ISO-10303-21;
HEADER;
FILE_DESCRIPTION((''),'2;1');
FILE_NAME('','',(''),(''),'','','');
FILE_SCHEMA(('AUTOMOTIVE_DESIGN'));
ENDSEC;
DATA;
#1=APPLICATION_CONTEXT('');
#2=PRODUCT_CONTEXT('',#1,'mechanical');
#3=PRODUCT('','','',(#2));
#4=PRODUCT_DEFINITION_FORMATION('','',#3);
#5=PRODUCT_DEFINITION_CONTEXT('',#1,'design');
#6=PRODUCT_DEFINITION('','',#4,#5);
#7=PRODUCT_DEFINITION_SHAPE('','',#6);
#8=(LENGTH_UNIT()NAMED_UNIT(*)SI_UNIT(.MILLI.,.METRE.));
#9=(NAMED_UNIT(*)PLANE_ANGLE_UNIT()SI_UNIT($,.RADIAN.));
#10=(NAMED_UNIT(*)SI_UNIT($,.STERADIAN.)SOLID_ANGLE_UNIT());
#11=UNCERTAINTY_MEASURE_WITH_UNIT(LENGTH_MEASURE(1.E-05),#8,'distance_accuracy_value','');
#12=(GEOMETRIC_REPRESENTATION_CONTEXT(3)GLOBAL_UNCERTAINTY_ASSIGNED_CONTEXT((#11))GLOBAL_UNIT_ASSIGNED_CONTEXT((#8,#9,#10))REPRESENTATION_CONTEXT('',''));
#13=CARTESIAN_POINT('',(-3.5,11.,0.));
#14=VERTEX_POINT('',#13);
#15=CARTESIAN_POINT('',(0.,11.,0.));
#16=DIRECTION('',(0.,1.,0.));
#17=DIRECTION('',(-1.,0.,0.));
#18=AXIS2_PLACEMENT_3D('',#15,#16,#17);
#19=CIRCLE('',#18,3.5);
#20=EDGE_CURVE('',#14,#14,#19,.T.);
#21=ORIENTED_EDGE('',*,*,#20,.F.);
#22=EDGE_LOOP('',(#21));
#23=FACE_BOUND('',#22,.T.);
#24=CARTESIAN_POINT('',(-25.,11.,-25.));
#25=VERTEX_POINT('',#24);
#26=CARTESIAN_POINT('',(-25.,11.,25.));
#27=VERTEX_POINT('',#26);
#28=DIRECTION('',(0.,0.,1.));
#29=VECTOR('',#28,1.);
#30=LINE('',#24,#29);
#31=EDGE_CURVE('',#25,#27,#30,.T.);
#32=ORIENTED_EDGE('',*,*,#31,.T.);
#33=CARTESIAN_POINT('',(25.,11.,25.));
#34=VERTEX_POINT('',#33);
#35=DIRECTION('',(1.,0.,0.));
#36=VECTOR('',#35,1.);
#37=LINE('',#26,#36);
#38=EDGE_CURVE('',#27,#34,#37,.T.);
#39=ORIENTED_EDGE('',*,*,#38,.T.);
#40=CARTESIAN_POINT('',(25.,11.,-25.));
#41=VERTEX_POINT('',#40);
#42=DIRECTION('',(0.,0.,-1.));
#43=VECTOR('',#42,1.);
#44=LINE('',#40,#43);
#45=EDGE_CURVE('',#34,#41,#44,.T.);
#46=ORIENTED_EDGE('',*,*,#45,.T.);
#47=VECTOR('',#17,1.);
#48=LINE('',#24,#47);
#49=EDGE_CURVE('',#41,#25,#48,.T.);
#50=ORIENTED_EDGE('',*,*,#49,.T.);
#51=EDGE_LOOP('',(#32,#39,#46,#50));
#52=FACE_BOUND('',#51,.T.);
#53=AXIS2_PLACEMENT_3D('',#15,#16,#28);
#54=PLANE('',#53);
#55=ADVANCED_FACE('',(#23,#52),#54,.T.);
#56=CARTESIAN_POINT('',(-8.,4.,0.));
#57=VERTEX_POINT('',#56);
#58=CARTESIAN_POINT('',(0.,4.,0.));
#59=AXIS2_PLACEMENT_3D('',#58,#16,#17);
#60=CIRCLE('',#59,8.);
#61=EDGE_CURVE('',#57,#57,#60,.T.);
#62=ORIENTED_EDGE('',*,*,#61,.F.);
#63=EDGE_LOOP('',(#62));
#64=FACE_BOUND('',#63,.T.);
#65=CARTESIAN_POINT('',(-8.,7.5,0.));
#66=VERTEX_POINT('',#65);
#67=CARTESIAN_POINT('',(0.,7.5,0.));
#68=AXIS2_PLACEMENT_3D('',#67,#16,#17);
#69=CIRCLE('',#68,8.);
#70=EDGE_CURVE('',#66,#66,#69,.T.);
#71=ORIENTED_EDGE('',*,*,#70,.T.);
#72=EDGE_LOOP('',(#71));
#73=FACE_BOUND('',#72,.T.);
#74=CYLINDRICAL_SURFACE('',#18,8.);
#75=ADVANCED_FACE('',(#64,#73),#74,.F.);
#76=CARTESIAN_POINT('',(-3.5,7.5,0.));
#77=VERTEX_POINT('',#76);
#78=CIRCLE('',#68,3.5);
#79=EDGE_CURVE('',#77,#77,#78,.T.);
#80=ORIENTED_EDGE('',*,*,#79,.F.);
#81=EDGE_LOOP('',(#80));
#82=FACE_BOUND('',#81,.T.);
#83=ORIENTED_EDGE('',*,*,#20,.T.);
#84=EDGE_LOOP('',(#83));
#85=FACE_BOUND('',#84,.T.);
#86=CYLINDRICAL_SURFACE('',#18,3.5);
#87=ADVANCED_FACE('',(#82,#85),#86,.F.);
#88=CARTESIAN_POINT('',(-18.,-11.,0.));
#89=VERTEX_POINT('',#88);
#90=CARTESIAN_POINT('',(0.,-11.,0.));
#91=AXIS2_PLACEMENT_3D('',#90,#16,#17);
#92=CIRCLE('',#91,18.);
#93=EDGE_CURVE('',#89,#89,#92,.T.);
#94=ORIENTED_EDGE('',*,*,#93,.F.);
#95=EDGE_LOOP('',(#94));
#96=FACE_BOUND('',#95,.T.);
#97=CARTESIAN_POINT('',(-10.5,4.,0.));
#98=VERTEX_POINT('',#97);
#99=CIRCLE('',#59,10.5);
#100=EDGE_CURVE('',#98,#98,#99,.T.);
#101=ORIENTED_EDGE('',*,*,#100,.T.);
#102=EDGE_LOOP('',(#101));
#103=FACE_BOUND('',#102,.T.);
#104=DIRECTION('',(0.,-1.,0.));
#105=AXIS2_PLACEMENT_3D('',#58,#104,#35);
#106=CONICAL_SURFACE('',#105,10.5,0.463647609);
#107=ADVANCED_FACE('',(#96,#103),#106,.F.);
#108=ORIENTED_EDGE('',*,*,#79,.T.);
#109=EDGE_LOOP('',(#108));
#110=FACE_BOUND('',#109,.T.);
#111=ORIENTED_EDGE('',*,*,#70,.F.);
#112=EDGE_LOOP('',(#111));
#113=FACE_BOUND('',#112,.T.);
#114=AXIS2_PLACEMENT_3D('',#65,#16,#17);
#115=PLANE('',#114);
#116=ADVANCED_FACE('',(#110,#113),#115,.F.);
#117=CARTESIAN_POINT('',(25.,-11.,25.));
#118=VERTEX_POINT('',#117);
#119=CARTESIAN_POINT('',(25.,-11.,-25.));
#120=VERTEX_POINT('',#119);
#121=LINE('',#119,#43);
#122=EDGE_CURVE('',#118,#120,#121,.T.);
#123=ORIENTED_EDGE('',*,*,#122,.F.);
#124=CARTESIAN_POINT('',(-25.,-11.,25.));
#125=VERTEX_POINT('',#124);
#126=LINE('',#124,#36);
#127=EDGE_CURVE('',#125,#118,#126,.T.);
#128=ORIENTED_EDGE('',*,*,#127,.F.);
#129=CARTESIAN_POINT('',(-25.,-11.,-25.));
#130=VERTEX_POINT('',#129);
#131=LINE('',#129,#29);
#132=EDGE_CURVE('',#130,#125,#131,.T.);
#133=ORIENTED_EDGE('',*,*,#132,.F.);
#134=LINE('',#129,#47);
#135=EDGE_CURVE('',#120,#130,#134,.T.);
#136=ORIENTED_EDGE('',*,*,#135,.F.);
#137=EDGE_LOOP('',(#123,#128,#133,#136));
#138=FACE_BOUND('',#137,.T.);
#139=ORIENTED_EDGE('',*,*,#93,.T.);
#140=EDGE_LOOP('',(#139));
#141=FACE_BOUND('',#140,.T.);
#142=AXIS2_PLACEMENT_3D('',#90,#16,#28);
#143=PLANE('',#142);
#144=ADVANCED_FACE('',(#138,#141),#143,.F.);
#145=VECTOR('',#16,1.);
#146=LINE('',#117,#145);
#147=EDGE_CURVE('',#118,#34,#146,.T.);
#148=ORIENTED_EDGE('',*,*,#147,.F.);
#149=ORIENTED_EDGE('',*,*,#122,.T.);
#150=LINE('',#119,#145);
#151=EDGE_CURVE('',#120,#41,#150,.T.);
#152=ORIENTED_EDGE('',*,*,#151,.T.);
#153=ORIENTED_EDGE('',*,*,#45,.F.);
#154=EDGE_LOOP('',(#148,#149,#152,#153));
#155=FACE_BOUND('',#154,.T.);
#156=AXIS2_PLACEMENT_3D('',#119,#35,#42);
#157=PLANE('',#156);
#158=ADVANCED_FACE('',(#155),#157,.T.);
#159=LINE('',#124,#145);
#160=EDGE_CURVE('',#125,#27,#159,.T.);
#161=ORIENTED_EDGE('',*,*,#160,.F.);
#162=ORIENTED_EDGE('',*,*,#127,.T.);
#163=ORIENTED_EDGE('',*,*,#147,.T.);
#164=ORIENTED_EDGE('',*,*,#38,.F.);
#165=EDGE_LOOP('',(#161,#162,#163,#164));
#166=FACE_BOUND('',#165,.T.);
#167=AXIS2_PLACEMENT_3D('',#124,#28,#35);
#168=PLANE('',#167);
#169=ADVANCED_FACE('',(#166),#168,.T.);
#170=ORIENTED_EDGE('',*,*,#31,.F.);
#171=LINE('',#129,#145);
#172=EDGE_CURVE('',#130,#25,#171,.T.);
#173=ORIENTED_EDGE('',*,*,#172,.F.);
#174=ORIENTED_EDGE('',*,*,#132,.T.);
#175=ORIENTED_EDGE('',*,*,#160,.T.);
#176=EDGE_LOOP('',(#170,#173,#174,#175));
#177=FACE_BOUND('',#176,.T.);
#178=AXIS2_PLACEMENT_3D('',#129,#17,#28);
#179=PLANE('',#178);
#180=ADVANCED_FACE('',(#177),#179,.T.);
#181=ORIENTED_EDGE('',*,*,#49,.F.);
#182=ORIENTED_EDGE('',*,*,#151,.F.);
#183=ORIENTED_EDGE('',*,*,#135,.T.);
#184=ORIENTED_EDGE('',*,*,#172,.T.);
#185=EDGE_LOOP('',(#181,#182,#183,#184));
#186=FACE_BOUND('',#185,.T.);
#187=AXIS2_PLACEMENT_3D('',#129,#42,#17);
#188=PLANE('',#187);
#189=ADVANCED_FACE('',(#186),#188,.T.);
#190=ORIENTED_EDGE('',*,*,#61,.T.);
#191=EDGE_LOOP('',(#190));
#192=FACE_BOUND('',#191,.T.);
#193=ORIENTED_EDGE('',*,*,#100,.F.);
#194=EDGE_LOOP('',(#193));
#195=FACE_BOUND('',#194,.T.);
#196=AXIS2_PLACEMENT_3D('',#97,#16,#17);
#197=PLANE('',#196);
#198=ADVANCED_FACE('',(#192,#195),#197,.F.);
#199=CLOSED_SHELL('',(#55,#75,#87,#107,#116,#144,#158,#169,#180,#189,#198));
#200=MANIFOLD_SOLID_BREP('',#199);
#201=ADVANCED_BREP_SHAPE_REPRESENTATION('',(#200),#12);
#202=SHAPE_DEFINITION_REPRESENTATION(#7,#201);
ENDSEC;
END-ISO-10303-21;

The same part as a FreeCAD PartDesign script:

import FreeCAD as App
import Part
import Sketcher
from FreeCAD import Vector
Q = App.Units.Quantity

doc = App.newDocument("Part")
params = doc.addObject("Spreadsheet::Sheet", "Params")
for row, (alias, value) in enumerate([
    ("sketch1_width", "50 mm"),
    ("pad1_length", "11 mm"),
    ("pad1_length2", "11 mm"),
    ("sketch2_width", "18 mm"),
    ("sketch2_height", "22 mm"),
    ("sketch2_width2", "4.5 mm"),
    ("sketch2_width3", "2.5 mm"),
    ("sketch2_width4", "3.5 mm"),
    ("groove_angle", "360 deg"),
], start=1):
    params.set(f"A{row}", alias)
    params.set(f"B{row}", "=" + value)
    params.setAlias(f"B{row}", alias)

body = doc.addObject("PartDesign::Body", "Body")

sketch1 = body.newObject("Sketcher::SketchObject", "Sketch")
sketch1.AttachmentSupport = (doc.getObject("XZ_Plane"), [""])
sketch1.MapMode = "FlatFace"
sketch1.addGeometry([
    Part.LineSegment(Vector(-25, -25, 0), Vector(-25, 25, 0)),
    Part.LineSegment(Vector(-25, 25, 0), Vector(25, 25, 0)),
    Part.LineSegment(Vector(25, 25, 0), Vector(25, -25, 0)),
    Part.LineSegment(Vector(25, -25, 0), Vector(-25, -25, 0)),
], False)
sketch1.addConstraint([
    Sketcher.Constraint("Coincident", 0, 2, 1, 1),
    Sketcher.Constraint("Coincident", 1, 2, 2, 1),
    Sketcher.Constraint("Coincident", 2, 2, 3, 1),
    Sketcher.Constraint("Coincident", 3, 2, 0, 1),
    Sketcher.Constraint("Vertical", 0),
    Sketcher.Constraint("Horizontal", 1),
    Sketcher.Constraint("Vertical", 2),
    Sketcher.Constraint("Horizontal", 3),
    Sketcher.Constraint("Symmetric", 0, 2, 2, 2, -1, 1),
    Sketcher.Constraint("Equal", 3, 0),
    Sketcher.Constraint("DistanceX", 1, 1, 1, 2, Q("50 mm")),
])
sketch1.setExpression("Constraints[10]", "Params.sketch1_width")
pad1 = body.newObject("PartDesign::Pad", "Pad")
pad1.Profile = sketch1
pad1.Type = "TwoLengths"
pad1.setExpression("Length", "Params.pad1_length")
pad1.setExpression("Length2", "Params.pad1_length2")
pad1.Reversed = True

sketch2 = body.newObject("Sketcher::SketchObject", "Sketch001")
sketch2.AttachmentSupport = (doc.getObject("XY_Plane"), [""])
sketch2.MapMode = "FlatFace"
sketch2.addGeometry([
    Part.LineSegment(Vector(-3.5, 11, 0), Vector(-3.5, 7.5, 0)),
    Part.LineSegment(Vector(-3.5, 7.5, 0), Vector(-8, 7.5, 0)),
    Part.LineSegment(Vector(-8, 7.5, 0), Vector(-8, 4, 0)),
    Part.LineSegment(Vector(-8, 4, 0), Vector(-10.5, 4, 0)),
    Part.LineSegment(Vector(-10.5, 4, 0), Vector(-18, -11, 0)),
    Part.LineSegment(Vector(-18, -11, 0), Vector(0, -11, 0)),
    Part.LineSegment(Vector(0, -11, 0), Vector(0, 11, 0)),
    Part.LineSegment(Vector(0, 11, 0), Vector(-3.5, 11, 0)),
], False)
sketch2.addConstraint([
    Sketcher.Constraint("Coincident", 0, 2, 1, 1),
    Sketcher.Constraint("Coincident", 1, 2, 2, 1),
    Sketcher.Constraint("Coincident", 2, 2, 3, 1),
    Sketcher.Constraint("Coincident", 3, 2, 4, 1),
    Sketcher.Constraint("Coincident", 4, 2, 5, 1),
    Sketcher.Constraint("Coincident", 5, 2, 6, 1),
    Sketcher.Constraint("Coincident", 6, 2, 7, 1),
    Sketcher.Constraint("Coincident", 7, 2, 0, 1),
    Sketcher.Constraint("Vertical", 0),
    Sketcher.Constraint("Horizontal", 1),
    Sketcher.Constraint("Vertical", 2),
    Sketcher.Constraint("Horizontal", 3),
    Sketcher.Constraint("Horizontal", 5),
    Sketcher.Constraint("Vertical", 6),
    Sketcher.Constraint("Horizontal", 7),
    Sketcher.Constraint("Symmetric", 5, 2, 6, 2, -1, 1),
    Sketcher.Constraint("Equal", 7, 0),
    Sketcher.Constraint("Equal", 0, 2),
    Sketcher.Constraint("DistanceX", 5, 1, 5, 2, Q("18 mm")),
    Sketcher.Constraint("DistanceY", 6, 1, 6, 2, Q("22 mm")),
    Sketcher.Constraint("DistanceX", 1, 2, 1, 1, Q("4.5 mm")),
    Sketcher.Constraint("DistanceX", 3, 2, 3, 1, Q("2.5 mm")),
    Sketcher.Constraint("DistanceX", 7, 2, 7, 1, Q("3.5 mm")),
])
sketch2.setExpression("Constraints[18]", "Params.sketch2_width")
sketch2.setExpression("Constraints[19]", "Params.sketch2_height")
sketch2.setExpression("Constraints[20]", "Params.sketch2_width2")
sketch2.setExpression("Constraints[21]", "Params.sketch2_width3")
sketch2.setExpression("Constraints[22]", "Params.sketch2_width4")
groove = body.newObject("PartDesign::Groove", "Groove")
groove.Profile = sketch2
groove.ReferenceAxis = (sketch2, ["V_Axis"])
groove.setExpression("Angle", "Params.groove_angle")

doc.recompute()
